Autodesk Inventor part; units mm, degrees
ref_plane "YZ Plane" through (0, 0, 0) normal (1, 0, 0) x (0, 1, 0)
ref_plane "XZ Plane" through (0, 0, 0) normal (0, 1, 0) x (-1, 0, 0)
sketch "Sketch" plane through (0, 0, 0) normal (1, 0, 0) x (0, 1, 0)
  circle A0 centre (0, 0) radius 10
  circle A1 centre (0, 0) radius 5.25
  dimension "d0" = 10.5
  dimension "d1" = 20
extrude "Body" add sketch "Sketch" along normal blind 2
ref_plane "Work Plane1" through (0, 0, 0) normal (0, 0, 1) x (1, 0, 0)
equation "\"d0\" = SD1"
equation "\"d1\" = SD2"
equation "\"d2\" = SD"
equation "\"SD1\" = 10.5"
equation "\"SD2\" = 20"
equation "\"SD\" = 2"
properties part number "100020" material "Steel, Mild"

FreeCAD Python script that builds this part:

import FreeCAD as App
import Part
import Sketcher
from FreeCAD import Vector
Q = App.Units.Quantity

doc = App.newDocument("Part")
params = doc.addObject("Spreadsheet::Sheet", "Params")
for row, (alias, value) in enumerate([
    ("sketch1_diameter", "20 mm"),
    ("sketch1_diameter2", "10.5 mm"),
    ("pad1_length", "2 mm"),
], start=1):
    params.set(f"A{row}", alias)
    params.set(f"B{row}", "=" + value)
    params.setAlias(f"B{row}", alias)

body = doc.addObject("PartDesign::Body", "Body")

sketch1 = body.newObject("Sketcher::SketchObject", "Sketch")
sketch1.AttachmentSupport = (doc.getObject("YZ_Plane"), [""])
sketch1.MapMode = "FlatFace"
sketch1.addGeometry(Part.Circle(Vector(0, 0, 0), Vector(0, 0, 1), 10), False)
sketch1.addGeometry(Part.Circle(Vector(0, 0, 0), Vector(0, 0, 1), 5), False)
sketch1.addConstraint(Sketcher.Constraint("Coincident", 0, 3, -1, 1))
sketch1.addConstraint(Sketcher.Constraint("Coincident", 1, 3, -1, 1))
sketch1.addConstraint(Sketcher.Constraint("Diameter", 0, Q("20 mm")))
sketch1.addConstraint(Sketcher.Constraint("Diameter", 1, Q("10.5 mm")))
sketch1.setExpression("Constraints[2]", "Params.sketch1_diameter")
sketch1.setExpression("Constraints[3]", "Params.sketch1_diameter2")
pad1 = body.newObject("PartDesign::Pad", "Pad")
pad1.Profile = sketch1
pad1.setExpression("Length", "Params.pad1_length")

doc.recompute()
